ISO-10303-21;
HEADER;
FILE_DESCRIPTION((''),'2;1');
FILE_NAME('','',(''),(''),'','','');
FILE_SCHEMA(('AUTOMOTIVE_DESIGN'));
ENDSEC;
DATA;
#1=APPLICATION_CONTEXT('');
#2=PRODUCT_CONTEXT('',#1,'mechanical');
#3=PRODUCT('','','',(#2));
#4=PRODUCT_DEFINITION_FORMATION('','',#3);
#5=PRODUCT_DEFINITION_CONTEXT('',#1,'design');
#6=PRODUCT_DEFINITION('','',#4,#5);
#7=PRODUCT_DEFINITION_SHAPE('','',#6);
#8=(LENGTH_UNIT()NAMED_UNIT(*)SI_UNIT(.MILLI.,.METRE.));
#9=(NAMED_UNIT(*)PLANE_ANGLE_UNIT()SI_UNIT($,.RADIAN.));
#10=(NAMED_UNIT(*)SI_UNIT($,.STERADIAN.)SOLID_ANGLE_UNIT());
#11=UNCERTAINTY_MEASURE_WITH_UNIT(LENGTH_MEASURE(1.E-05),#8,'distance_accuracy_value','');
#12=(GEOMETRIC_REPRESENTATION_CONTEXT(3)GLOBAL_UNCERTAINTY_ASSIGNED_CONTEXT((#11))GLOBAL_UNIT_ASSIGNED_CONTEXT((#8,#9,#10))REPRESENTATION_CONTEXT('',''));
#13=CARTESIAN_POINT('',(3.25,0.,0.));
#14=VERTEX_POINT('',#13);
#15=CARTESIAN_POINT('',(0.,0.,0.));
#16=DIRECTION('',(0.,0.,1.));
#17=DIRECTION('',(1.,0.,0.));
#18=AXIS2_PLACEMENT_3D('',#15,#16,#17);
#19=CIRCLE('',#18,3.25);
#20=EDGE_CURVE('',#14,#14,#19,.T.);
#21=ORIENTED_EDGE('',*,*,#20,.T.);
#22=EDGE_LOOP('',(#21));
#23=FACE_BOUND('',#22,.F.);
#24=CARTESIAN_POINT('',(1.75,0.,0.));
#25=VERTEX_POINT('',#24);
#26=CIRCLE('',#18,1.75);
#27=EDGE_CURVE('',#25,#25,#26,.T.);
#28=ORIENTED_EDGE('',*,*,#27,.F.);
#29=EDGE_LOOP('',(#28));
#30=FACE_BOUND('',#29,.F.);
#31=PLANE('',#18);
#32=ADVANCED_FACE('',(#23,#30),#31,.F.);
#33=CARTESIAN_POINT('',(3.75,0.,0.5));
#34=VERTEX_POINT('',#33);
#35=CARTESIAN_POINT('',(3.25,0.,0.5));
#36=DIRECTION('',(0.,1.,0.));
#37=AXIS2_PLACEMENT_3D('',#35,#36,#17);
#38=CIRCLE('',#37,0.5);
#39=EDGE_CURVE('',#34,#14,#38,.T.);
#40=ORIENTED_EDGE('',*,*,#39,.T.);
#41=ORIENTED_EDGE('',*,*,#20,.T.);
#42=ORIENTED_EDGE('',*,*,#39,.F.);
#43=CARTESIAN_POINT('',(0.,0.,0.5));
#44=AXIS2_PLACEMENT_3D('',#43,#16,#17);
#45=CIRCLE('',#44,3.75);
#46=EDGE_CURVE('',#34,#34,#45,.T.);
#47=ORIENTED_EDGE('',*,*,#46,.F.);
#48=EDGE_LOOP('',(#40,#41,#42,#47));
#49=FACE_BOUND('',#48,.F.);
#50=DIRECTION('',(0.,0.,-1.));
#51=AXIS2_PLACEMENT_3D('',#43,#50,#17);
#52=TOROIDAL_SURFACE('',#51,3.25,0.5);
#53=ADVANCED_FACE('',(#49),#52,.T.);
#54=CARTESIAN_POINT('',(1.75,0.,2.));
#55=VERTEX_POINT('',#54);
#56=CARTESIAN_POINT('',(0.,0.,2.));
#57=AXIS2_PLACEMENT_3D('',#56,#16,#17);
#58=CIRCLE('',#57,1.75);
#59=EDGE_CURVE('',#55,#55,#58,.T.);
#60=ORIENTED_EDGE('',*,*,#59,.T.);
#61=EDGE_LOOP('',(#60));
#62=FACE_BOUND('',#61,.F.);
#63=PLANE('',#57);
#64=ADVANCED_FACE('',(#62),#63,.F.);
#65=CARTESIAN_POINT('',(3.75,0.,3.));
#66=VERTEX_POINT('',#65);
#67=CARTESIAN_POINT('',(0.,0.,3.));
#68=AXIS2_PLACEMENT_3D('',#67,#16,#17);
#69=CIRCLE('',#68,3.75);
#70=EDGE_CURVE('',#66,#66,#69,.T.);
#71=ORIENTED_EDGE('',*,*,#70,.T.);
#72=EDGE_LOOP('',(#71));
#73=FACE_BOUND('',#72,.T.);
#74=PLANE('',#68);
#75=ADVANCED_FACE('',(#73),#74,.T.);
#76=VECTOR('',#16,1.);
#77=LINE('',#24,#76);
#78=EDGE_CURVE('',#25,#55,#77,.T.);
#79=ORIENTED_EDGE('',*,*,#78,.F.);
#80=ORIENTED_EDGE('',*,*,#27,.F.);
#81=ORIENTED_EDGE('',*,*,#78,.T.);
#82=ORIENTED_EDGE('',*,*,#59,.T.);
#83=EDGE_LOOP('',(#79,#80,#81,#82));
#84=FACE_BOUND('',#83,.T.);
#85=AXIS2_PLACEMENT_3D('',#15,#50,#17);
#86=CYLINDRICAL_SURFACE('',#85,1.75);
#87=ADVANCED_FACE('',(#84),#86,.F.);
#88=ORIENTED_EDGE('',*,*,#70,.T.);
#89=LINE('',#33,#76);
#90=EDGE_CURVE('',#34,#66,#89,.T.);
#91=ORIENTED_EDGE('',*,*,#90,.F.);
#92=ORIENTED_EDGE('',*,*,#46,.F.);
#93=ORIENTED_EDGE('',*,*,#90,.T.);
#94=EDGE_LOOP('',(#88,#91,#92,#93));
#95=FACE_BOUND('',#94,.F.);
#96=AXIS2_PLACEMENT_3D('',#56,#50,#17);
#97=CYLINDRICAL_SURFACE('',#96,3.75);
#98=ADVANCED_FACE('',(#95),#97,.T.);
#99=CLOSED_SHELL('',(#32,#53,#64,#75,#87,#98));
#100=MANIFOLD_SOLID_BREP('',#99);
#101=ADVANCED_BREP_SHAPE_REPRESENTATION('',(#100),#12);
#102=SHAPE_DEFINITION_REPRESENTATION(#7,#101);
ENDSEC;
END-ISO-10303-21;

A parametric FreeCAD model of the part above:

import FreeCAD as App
import Part
import Sketcher
from FreeCAD import Vector
Q = App.Units.Quantity


def edges_at(feature, points):
    """Names of the edges that pass closest to the given points."""
    edges = feature.Shape.Edges
    near = lambda p: min(range(len(edges)), key=lambda i: edges[i].distToShape(Part.Vertex(*p))[0])
    return sorted({f"Edge{near(p) + 1}" for p in points})

doc = App.newDocument("Part")
body = doc.addObject("PartDesign::Body", "Body")

sketch1 = body.newObject("Sketcher::SketchObject", "Sketch")
sketch1.AttachmentSupport = (doc.getObject("XY_Plane"), [""])
sketch1.MapMode = "FlatFace"
sketch1.addGeometry([
    Part.Circle(Vector(0, 0, 0), Vector(0, 0, 1), 3.8),
    Part.Circle(Vector(0, 0, 0), Vector(0, 0, 1), 1.8),
], False)
sketch1.addConstraint([
    Sketcher.Constraint("Coincident", 0, 3, -1, 1),
    Sketcher.Constraint("Coincident", 1, 3, -1, 1),
    Sketcher.Constraint("Diameter", 1, Q("3.5 mm")),
    Sketcher.Constraint("Diameter", 0, Q("7.5 mm")),
])
pad1 = body.newObject("PartDesign::Pad", "Pad")
pad1.Profile = sketch1
pad1.Length = 2
doc.recompute()

fillet = body.newObject("PartDesign::Fillet", "Fillet")
fillet.Base = (pad1, edges_at(pad1, [(-3.75, 0, 0)]))
fillet.Radius = 0.5

sketch2 = body.newObject("Sketcher::SketchObject", "Sketch001")
sketch2.AttachmentSupport = (doc.getObject("XY_Plane"), [""])
sketch2.MapMode = "FlatFace"
sketch2.AttachmentOffset = App.Placement(Vector(0, 0, 2), App.Rotation())
sketch2.addGeometry(Part.Circle(Vector(0, 0, 0), Vector(0, 0, 1), 3.8), False)
sketch2.addConstraint([
    Sketcher.Constraint("Coincident", 0, 3, -1, 1),
    Sketcher.Constraint("Diameter", 0, Q("7.5 mm")),
])
pad2 = body.newObject("PartDesign::Pad", "Pad001")
pad2.Profile = sketch2
pad2.Length = 1

doc.recompute()
